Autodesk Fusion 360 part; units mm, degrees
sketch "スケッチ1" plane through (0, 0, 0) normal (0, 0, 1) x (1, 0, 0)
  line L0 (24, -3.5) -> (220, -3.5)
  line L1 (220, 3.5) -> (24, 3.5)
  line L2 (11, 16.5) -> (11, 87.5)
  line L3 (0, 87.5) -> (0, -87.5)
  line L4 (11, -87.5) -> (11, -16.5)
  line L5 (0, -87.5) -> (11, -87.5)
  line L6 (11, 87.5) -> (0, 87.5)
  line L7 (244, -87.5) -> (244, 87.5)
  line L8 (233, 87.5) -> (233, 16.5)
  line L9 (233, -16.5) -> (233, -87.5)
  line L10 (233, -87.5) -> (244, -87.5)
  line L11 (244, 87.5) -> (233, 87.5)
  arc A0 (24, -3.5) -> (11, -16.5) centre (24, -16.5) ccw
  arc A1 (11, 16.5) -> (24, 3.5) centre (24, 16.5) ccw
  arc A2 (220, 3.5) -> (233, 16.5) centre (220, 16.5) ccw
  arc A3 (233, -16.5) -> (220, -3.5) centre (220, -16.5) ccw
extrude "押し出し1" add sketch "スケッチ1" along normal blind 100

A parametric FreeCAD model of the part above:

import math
import FreeCAD as App
import Part
import Sketcher

doc = App.newDocument("Part")
body = doc.addObject("PartDesign::Body", "Body")

sketch1 = body.newObject("Sketcher::SketchObject", "Sketch")
sketch1.AttachmentSupport = (doc.getObject("XY_Plane"), [""])
sketch1.MapMode = "FlatFace"
sketch1.addGeometry(Part.ArcOfCircle(Part.Circle(App.Vector(24, -16, 0), App.Vector(0, 0, 1), 13), math.radians(90), math.radians(180)), False)
sketch1.addGeometry(Part.LineSegment(App.Vector(24, -4, 0), App.Vector(220, -4, 0)), False)
sketch1.addGeometry(Part.ArcOfCircle(Part.Circle(App.Vector(220, -16, 0), App.Vector(0, 0, 1), 13), math.radians(0), math.radians(90)), False)
sketch1.addGeometry(Part.LineSegment(App.Vector(233, -16, 0), App.Vector(233, -88, 0)), False)
sketch1.addGeometry(Part.LineSegment(App.Vector(233, -88, 0), App.Vector(244, -88, 0)), False)
sketch1.addGeometry(Part.LineSegment(App.Vector(244, -88, 0), App.Vector(244, 88, 0)), False)
sketch1.addGeometry(Part.LineSegment(App.Vector(244, 88, 0), App.Vector(233, 88, 0)), False)
sketch1.addGeometry(Part.LineSegment(App.Vector(233, 88, 0), App.Vector(233, 16, 0)), False)
sketch1.addGeometry(Part.ArcOfCircle(Part.Circle(App.Vector(220, 16, 0), App.Vector(0, 0, 1), 13), math.radians(-90), math.radians(0)), False)
sketch1.addGeometry(Part.LineSegment(App.Vector(220, 4, 0), App.Vector(24, 4, 0)), False)
sketch1.addGeometry(Part.ArcOfCircle(Part.Circle(App.Vector(24, 16, 0), App.Vector(0, 0, 1), 13), math.radians(180), math.radians(270)), False)
sketch1.addGeometry(Part.LineSegment(App.Vector(11, 16, 0), App.Vector(11, 88, 0)), False)
sketch1.addGeometry(Part.LineSegment(App.Vector(11, 88, 0), App.Vector(0, 88, 0)), False)
sketch1.addGeometry(Part.LineSegment(App.Vector(0, 88, 0), App.Vector(0, -88, 0)), False)
sketch1.addGeometry(Part.LineSegment(App.Vector(0, -88, 0), App.Vector(11, -88, 0)), False)
sketch1.addGeometry(Part.LineSegment(App.Vector(11, -88, 0), App.Vector(11, -16, 0)), False)
sketch1.addConstraint(Sketcher.Constraint("Tangent", 0, 1, 1, 1))
sketch1.addConstraint(Sketcher.Constraint("Tangent", 1, 2, 2, 2))
sketch1.addConstraint(Sketcher.Constraint("Tangent", 2, 1, 3, 1))
sketch1.addConstraint(Sketcher.Constraint("Coincident", 3, 2, 4, 1))
sketch1.addConstraint(Sketcher.Constraint("Coincident", 4, 2, 5, 1))
sketch1.addConstraint(Sketcher.Constraint("Coincident", 5, 2, 6, 1))
sketch1.addConstraint(Sketcher.Constraint("Coincident", 6, 2, 7, 1))
sketch1.addConstraint(Sketcher.Constraint("Tangent", 7, 2, 8, 2))
sketch1.addConstraint(Sketcher.Constraint("Tangent", 8, 1, 9, 1))
sketch1.addConstraint(Sketcher.Constraint("Tangent", 9, 2, 10, 2))
sketch1.addConstraint(Sketcher.Constraint("Tangent", 10, 1, 11, 1))
sketch1.addConstraint(Sketcher.Constraint("Coincident", 11, 2, 12, 1))
sketch1.addConstraint(Sketcher.Constraint("Coincident", 12, 2, 13, 1))
sketch1.addConstraint(Sketcher.Constraint("Coincident", 13, 2, 14, 1))
sketch1.addConstraint(Sketcher.Constraint("Coincident", 14, 2, 15, 1))
sketch1.addConstraint(Sketcher.Constraint("Tangent", 15, 2, 0, 2))
sketch1.addConstraint(Sketcher.Constraint("Horizontal", 1))
sketch1.addConstraint(Sketcher.Constraint("Vertical", 3))
sketch1.addConstraint(Sketcher.Constraint("Horizontal", 4))
sketch1.addConstraint(Sketcher.Constraint("Vertical", 5))
sketch1.addConstraint(Sketcher.Constraint("Horizontal", 6))
sketch1.addConstraint(Sketcher.Constraint("Vertical", 7))
sketch1.addConstraint(Sketcher.Constraint("Horizontal", 9))
sketch1.addConstraint(Sketcher.Constraint("Vertical", 11))
sketch1.addConstraint(Sketcher.Constraint("Horizontal", 12))
sketch1.addConstraint(Sketcher.Constraint("Vertical", 13))
sketch1.addConstraint(Sketcher.Constraint("Horizontal", 14))
sketch1.addConstraint(Sketcher.Constraint("Vertical", 15))
sketch1.addConstraint(Sketcher.Constraint("Equal", 0, 2))
sketch1.addConstraint(Sketcher.Constraint("Equal", 2, 8))
sketch1.addConstraint(Sketcher.Constraint("Equal", 8, 10))
sketch1.addConstraint(Sketcher.Constraint("Symmetric", 12, 2, 13, 2, -1, 1))
sketch1.addConstraint(Sketcher.Constraint("Symmetric", 2, 3, 8, 3, -1))
sketch1.addConstraint(Sketcher.Constraint("Horizontal", 6, 2, 11, 2))
sketch1.addConstraint(Sketcher.Constraint("Horizontal", 4, 2, 13, 2))
sketch1.addConstraint(Sketcher.Constraint("Vertical", 0, 3, 10, 3))
sketch1.addConstraint(Sketcher.Constraint("Equal", 6, 12))
sketch1.addConstraint(Sketcher.Constraint("Radius", 0, 13.0))
sketch1.addConstraint(Sketcher.Constraint("DistanceX", 1, 1, 1, 2, 196.0))
sketch1.addConstraint(Sketcher.Constraint("DistanceX", 4, 1, 4, 2, 11.0))
sketch1.addConstraint(Sketcher.Constraint("DistanceY", 3, 2, 3, 1, 71.0))
sketch1.addConstraint(Sketcher.Constraint("DistanceY", 5, 1, 5, 2, 175.0))
pad1 = body.newObject("PartDesign::Pad", "Pad")
pad1.Profile = sketch1
pad1.Length = 100

doc.recompute()
